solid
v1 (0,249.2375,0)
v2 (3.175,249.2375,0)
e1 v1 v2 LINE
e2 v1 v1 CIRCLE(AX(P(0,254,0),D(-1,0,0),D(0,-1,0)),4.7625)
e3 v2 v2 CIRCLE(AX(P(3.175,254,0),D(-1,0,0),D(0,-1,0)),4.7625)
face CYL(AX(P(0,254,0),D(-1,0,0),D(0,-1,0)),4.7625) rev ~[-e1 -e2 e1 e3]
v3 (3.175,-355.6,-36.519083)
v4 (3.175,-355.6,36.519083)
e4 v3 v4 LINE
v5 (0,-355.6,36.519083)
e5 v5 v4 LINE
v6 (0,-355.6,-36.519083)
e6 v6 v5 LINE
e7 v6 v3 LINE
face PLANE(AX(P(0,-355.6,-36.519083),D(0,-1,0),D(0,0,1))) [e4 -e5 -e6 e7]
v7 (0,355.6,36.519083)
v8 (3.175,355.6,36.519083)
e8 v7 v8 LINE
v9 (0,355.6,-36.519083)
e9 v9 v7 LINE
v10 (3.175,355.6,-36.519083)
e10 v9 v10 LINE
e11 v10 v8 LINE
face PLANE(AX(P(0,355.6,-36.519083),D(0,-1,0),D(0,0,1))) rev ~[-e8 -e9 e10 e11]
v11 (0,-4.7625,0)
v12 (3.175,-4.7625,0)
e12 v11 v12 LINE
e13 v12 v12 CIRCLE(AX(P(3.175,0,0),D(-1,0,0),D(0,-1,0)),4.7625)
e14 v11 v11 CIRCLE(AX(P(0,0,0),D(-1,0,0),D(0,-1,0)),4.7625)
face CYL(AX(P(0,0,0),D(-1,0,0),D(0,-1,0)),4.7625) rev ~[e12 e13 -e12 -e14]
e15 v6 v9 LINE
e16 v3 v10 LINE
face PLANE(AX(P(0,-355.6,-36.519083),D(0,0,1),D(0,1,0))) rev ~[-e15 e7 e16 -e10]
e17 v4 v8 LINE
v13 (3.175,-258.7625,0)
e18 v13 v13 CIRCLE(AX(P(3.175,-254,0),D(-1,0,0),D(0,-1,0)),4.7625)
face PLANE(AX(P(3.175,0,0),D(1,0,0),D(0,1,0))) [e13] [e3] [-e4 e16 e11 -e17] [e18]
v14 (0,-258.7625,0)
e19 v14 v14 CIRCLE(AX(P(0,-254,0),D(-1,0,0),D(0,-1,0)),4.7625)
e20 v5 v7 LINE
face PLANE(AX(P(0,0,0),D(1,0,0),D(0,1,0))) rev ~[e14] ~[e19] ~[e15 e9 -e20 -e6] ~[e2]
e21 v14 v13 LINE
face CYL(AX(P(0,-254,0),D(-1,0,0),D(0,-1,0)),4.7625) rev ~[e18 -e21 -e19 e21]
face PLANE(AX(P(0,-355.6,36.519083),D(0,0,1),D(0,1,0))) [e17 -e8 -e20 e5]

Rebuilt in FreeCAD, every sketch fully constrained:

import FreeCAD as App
import Part
import Sketcher
Q = App.Units.Quantity


def add_polygon(sketch, points):
    """Adds a closed chain of lines whose ends are joined by coincident constraints."""
    first, n = sketch.GeometryCount, len(points)
    for a, b in zip(points, points[1:] + points[:1]):
        sketch.addGeometry(Part.LineSegment(App.Vector(*a, 0), App.Vector(*b, 0)), False)
    for i in range(n):
        sketch.addConstraint(Sketcher.Constraint("Coincident", first + i, 2, first + (i + 1) % n, 1))

doc = App.newDocument("Part")
body = doc.addObject("PartDesign::Body", "Body")

# Sketch on YZ plane
sketch1 = body.newObject("Sketcher::SketchObject", "Sketch")
sketch1.AttachmentSupport = (doc.getObject("YZ_Plane"), [""])
sketch1.MapMode = "FlatFace"
add_polygon(sketch1, [(-355.6, 36.519083), (-355.6, -36.519083), (355.6, -36.519083), (355.6, 36.519083)])  # lines 0-3
sketch1.addConstraint([
    Sketcher.Constraint("Vertical", 0),
    Sketcher.Constraint("Horizontal", 1),
    Sketcher.Constraint("Vertical", 2),
    Sketcher.Constraint("Horizontal", 3),
    Sketcher.Constraint("Symmetric", 0, 2, 2, 2, -1, 1),
    Sketcher.Constraint("DistanceX", 1, 1, 1, 2, Q("28 in")),
    Sketcher.Constraint("DistanceY", 0, 2, 0, 1, 73.038166),
])
pad1 = body.newObject("PartDesign::Pad", "Pad")
pad1.Profile = sketch1
pad1.Length = Q("0.125 in")

# Sketch on YZ plane
sketch2 = body.newObject("Sketcher::SketchObject", "Sketch001")
sketch2.AttachmentSupport = (doc.getObject("YZ_Plane"), [""])
sketch2.MapMode = "FlatFace"
sketch2.addGeometry([
    Part.Circle(App.Vector(254, 0, 0), App.Vector(0, 0, 1), 4.7625),
    Part.Circle(App.Vector(0, 0, 0), App.Vector(0, 0, 1), 4.7625),
    Part.Circle(App.Vector(-254, 0, 0), App.Vector(0, 0, 1), 4.7625),
], False)
sketch2.addConstraint([
    Sketcher.Constraint("Coincident", 1, 3, -1, 1),
    Sketcher.Constraint("Equal", 0, 1),
    Sketcher.Constraint("Equal", 1, 2),
    Sketcher.Constraint("Symmetric", 0, 3, 2, 3, -1, 1),
    Sketcher.Constraint("PointOnObject", 0, 3, -1),
    Sketcher.Constraint("Diameter", 0, Q("0.375 in")),
    Sketcher.Constraint("DistanceX", -1, 1, 0, 3, Q("10 in")),
])
pocket1 = body.newObject("PartDesign::Pocket", "Pocket")
pocket1.Profile = sketch2
pocket1.Type = "ThroughAll"
pocket1.Reversed = True

doc.recompute()
